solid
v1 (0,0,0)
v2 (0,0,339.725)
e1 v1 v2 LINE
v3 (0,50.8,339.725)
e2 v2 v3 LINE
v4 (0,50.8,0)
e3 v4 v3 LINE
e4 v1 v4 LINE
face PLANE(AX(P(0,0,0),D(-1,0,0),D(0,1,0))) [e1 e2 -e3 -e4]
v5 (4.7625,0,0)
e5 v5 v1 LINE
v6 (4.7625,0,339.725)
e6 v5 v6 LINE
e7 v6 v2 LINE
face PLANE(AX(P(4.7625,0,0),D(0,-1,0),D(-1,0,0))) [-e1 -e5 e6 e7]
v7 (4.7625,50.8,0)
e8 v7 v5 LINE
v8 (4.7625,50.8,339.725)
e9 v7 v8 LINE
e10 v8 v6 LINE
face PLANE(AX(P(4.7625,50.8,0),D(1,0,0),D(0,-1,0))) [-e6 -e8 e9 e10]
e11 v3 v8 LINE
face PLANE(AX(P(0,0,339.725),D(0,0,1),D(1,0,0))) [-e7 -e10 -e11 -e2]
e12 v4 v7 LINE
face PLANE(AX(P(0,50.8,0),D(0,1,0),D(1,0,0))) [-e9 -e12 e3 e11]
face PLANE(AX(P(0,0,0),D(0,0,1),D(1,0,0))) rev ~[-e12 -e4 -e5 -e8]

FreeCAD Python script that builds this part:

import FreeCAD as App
import Part
import Sketcher
from FreeCAD import Vector
Q = App.Units.Quantity


def add_polygon(sketch, points):
    """Adds a closed chain of lines whose ends are joined by coincident constraints."""
    first, n = sketch.GeometryCount, len(points)
    for a, b in zip(points, points[1:] + points[:1]):
        sketch.addGeometry(Part.LineSegment(App.Vector(*a, 0), App.Vector(*b, 0)), False)
    for i in range(n):
        sketch.addConstraint(Sketcher.Constraint("Coincident", first + i, 2, first + (i + 1) % n, 1))

doc = App.newDocument("Part")
body = doc.addObject("PartDesign::Body", "Body")

# Sketch on XY plane
sketch1 = body.newObject("Sketcher::SketchObject", "Sketch")
sketch1.AttachmentSupport = (doc.getObject("XY_Plane"), [""])
sketch1.MapMode = "FlatFace"
add_polygon(sketch1, [(4.7625, 50.8), (0, 50.8), (0, 0), (4.7625, 0)])  # lines 0-3
sketch1.addConstraint(Sketcher.Constraint("Horizontal", 0))
sketch1.addConstraint(Sketcher.Constraint("Vertical", 1))
sketch1.addConstraint(Sketcher.Constraint("Horizontal", 2))
sketch1.addConstraint(Sketcher.Constraint("Vertical", 3))
sketch1.addConstraint(Sketcher.Constraint("Coincident", 1, 2, -1, 1))
sketch1.addConstraint(Sketcher.Constraint("DistanceY", 1, 2, 1, 1, Q("2 in")))
sketch1.addConstraint(Sketcher.Constraint("DistanceX", 0, 2, 0, 1, Q("0.1875 in")))
pad1 = body.newObject("PartDesign::Pad", "Pad")
pad1.Profile = sketch1
pad1.Length = Q("13.375 in")

doc.recompute()
